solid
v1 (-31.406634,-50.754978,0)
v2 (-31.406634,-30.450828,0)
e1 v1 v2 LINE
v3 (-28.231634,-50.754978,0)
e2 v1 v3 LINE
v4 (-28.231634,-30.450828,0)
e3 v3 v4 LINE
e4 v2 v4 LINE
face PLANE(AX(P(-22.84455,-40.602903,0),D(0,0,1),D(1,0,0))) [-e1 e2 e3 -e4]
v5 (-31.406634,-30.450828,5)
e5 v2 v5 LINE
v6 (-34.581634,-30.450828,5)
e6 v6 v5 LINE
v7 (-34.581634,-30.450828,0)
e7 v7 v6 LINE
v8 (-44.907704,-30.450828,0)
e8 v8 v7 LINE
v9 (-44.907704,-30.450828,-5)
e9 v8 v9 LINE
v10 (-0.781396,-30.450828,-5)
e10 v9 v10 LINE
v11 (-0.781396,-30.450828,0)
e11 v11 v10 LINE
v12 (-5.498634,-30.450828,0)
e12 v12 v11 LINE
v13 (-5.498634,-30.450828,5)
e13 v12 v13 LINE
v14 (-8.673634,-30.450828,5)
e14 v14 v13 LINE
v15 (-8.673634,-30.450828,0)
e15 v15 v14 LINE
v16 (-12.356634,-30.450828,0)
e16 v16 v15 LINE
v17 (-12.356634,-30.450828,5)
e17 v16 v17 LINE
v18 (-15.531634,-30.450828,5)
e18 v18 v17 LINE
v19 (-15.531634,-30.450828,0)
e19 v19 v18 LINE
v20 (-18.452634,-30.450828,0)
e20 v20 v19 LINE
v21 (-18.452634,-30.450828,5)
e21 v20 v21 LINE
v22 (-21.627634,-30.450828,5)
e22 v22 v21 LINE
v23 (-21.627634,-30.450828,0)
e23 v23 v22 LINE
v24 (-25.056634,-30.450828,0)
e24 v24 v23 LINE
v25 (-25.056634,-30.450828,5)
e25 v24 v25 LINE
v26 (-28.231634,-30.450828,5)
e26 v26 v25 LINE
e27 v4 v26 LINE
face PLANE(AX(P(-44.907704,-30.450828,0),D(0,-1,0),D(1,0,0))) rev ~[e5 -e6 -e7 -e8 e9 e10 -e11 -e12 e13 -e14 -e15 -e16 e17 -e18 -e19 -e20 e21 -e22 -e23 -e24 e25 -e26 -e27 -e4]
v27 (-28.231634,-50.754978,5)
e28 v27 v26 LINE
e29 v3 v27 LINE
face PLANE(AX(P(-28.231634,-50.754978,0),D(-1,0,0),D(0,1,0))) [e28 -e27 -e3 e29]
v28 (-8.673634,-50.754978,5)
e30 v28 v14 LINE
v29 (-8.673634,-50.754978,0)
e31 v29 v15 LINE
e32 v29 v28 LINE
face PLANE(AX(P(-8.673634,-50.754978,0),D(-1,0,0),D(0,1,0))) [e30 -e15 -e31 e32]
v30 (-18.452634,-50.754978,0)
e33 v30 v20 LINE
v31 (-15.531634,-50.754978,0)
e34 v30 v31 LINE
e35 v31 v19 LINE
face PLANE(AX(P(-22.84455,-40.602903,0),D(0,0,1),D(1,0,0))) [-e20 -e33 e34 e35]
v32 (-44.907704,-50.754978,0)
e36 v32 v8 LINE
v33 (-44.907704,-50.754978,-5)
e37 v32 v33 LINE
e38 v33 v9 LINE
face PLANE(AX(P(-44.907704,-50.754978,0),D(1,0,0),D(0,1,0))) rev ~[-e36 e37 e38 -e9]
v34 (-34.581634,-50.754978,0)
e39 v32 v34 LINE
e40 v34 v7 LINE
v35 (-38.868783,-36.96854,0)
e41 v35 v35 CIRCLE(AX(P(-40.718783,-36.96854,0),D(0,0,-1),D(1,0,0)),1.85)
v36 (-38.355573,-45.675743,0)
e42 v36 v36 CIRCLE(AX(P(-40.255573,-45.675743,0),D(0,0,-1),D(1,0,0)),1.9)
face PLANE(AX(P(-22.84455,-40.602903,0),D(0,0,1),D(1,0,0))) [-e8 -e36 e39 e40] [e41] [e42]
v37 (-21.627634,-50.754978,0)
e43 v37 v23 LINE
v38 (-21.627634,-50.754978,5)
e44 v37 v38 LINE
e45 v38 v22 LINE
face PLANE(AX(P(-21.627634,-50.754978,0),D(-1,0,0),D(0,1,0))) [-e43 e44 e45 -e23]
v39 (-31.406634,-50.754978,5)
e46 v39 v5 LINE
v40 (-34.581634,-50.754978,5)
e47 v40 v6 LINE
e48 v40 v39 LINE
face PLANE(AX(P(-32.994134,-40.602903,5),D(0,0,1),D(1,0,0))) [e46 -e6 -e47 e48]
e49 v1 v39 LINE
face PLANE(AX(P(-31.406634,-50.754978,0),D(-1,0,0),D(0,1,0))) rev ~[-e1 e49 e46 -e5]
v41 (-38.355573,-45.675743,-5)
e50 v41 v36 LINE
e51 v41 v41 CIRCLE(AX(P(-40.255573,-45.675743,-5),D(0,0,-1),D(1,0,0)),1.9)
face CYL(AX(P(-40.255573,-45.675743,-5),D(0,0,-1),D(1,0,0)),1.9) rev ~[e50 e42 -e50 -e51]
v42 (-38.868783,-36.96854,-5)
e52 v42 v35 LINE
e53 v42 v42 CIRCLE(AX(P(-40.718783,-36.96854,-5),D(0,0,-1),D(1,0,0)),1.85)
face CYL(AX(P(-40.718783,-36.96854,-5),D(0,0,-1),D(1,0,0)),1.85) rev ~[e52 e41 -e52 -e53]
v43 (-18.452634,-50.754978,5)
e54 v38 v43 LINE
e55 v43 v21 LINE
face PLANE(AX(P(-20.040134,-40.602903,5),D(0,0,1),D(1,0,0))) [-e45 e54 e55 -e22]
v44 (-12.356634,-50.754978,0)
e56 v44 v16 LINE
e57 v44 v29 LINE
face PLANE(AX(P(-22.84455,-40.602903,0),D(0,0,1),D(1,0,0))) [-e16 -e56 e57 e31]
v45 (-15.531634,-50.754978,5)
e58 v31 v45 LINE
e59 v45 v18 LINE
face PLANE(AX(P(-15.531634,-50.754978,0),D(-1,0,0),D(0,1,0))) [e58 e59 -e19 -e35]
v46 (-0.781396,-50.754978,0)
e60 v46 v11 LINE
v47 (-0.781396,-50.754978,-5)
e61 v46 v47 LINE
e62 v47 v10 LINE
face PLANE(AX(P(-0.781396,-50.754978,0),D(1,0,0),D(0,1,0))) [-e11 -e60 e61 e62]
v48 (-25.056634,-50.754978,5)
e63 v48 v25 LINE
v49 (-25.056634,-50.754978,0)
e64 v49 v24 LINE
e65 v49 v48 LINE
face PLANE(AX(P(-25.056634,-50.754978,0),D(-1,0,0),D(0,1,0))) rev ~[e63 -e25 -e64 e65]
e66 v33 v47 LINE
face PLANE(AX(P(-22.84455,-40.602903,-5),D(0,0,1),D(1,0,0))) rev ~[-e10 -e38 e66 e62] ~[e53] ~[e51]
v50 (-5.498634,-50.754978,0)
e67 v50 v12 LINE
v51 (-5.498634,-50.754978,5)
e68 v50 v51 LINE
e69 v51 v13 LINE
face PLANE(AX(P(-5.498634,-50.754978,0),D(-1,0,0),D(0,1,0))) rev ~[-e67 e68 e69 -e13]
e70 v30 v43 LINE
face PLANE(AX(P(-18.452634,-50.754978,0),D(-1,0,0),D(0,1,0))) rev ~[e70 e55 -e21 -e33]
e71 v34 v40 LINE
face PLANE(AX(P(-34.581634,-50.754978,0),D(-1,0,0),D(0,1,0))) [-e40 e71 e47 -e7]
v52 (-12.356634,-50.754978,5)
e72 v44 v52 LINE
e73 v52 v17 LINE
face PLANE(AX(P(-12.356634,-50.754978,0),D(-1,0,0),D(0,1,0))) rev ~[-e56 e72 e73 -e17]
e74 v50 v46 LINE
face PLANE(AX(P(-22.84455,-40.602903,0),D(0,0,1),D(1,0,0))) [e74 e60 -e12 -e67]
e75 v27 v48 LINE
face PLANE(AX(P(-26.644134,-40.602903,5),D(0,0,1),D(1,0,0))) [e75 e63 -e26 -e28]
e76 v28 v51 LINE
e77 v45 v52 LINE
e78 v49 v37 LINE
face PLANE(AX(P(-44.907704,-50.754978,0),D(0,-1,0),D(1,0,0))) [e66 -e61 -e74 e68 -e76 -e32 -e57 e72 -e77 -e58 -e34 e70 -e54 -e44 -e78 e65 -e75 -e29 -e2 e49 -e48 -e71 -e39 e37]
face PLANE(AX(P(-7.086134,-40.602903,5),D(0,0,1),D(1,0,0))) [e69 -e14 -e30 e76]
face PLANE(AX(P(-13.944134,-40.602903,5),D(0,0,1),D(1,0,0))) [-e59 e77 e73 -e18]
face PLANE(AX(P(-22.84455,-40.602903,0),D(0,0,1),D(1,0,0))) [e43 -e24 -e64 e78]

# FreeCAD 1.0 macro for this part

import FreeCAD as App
import Part
import Sketcher

V = App.Vector


def add_polygon(sketch, points):
    """Adds a closed chain of lines whose ends are joined by coincident constraints."""
    first, n = sketch.GeometryCount, len(points)
    for a, b in zip(points, points[1:] + points[:1]):
        sketch.addGeometry(Part.LineSegment(App.Vector(*a, 0), App.Vector(*b, 0)), False)
    for i in range(n):
        sketch.addConstraint(Sketcher.Constraint("Coincident", first + i, 2, first + (i + 1) % n, 1))

doc = App.newDocument("Part")
body = doc.addObject("PartDesign::Body", "Body")

# Sketch on XY plane
sketch1 = body.newObject("Sketcher::SketchObject", "Sketch")
sketch1.AttachmentSupport = (doc.getObject("XY_Plane"), [""])
sketch1.MapMode = "FlatFace"
add_polygon(sketch1, [(-45, -30), (-45, -51), (-1, -51), (-1, -30)])  # lines 0-3
sketch1.addConstraint([
    Sketcher.Constraint("Vertical", 0),
    Sketcher.Constraint("Horizontal", 1),
    Sketcher.Constraint("Vertical", 2),
    Sketcher.Constraint("Horizontal", 3),
    Sketcher.Constraint("DistanceX", 1, 1, 1, 2, 44.126308),
    Sketcher.Constraint("DistanceY", 0, 2, 0, 1, 20.30415),
    Sketcher.Constraint("DistanceY", 2, 2, -1, 1, 30.450828),
    Sketcher.Constraint("DistanceX", 0, 2, -1, 1, 44.907704),
])
pad1 = body.newObject("PartDesign::Pad", "Pad")
pad1.Profile = sketch1
pad1.Length = 5
pad1.Reversed = True

# Sketch on XY plane
sketch2 = body.newObject("Sketcher::SketchObject", "Sketch001")
sketch2.AttachmentSupport = (doc.getObject("XY_Plane"), [""])
sketch2.MapMode = "FlatFace"
add_polygon(sketch2, [(-8.7, -30.5), (-8.7, -50.8), (-5.5, -50.8), (-5.5, -30.5)])  # lines 0-3
add_polygon(sketch2, [(-15.5, -30.5), (-15.5, -50.8), (-12.4, -50.8), (-12.4, -30.5)])  # lines 4-7
add_polygon(sketch2, [(-21.6, -30.5), (-21.6, -50.8), (-18.5, -50.8), (-18.5, -30.5)])  # lines 8-11
add_polygon(sketch2, [(-28.2, -30.5), (-28.2, -50.8), (-25.1, -50.8), (-25.1, -30.5)])  # lines 12-15
add_polygon(sketch2, [(-34.6, -30.5), (-34.6, -50.8), (-31.4, -50.8), (-31.4, -30.5)])  # lines 16-19
sketch2.addConstraint([
    Sketcher.Constraint("Vertical", 0),
    Sketcher.Constraint("Horizontal", 1),
    Sketcher.Constraint("Vertical", 2),
    Sketcher.Constraint("Horizontal", 3),
    Sketcher.Constraint("Vertical", 4),
    Sketcher.Constraint("Horizontal", 5),
    Sketcher.Constraint("Vertical", 6),
    Sketcher.Constraint("Horizontal", 7),
    Sketcher.Constraint("Vertical", 8),
    Sketcher.Constraint("Horizontal", 9),
    Sketcher.Constraint("Vertical", 10),
    Sketcher.Constraint("Horizontal", 11),
    Sketcher.Constraint("Vertical", 12),
    Sketcher.Constraint("Horizontal", 13),
    Sketcher.Constraint("Vertical", 14),
    Sketcher.Constraint("Horizontal", 15),
    Sketcher.Constraint("Vertical", 16),
    Sketcher.Constraint("Horizontal", 17),
    Sketcher.Constraint("Vertical", 18),
    Sketcher.Constraint("Horizontal", 19),
    Sketcher.Constraint("Horizontal", 1, 2, 4, 2),
    Sketcher.Constraint("Horizontal", 3, 2, 6, 2),
    Sketcher.Constraint("Horizontal", 5, 2, 8, 2),
    Sketcher.Constraint("Horizontal", 7, 2, 10, 2),
    Sketcher.Constraint("Horizontal", 9, 2, 12, 2),
    Sketcher.Constraint("Horizontal", 11, 2, 14, 2),
    Sketcher.Constraint("Horizontal", 13, 2, 16, 2),
    Sketcher.Constraint("Horizontal", 15, 2, 18, 2),
    Sketcher.Constraint("Equal", 3, 5),
    Sketcher.Constraint("Equal", 7, 9),
    Sketcher.Constraint("Equal", 11, 13),
    Sketcher.Constraint("Equal", 15, 17),
    Sketcher.Constraint("DistanceX", 12, 2, 4, 2, 12.7),
    Sketcher.Constraint("DistanceX", 1, 1, 1, 2, 3.175),
    Sketcher.Constraint("DistanceX", 16, 2, 12, 2, 6.35),
    Sketcher.Constraint("DistanceX", 4, 2, 0, 2, 6.858),
    Sketcher.Constraint("DistanceX", 8, 2, 4, 2, 6.096),
    Sketcher.Constraint("DistanceY", 0, 2, 0, 1, 20.30415),
    Sketcher.Constraint("DistanceY", 2, 2, -1, 1, 30.450828),
    Sketcher.Constraint("DistanceX", 0, 2, -1, 1, 8.673634),
])
pad2 = body.newObject("PartDesign::Pad", "Pad001")
pad2.Profile = sketch2
pad2.Length = 5

# Sketch on XY plane
sketch3 = body.newObject("Sketcher::SketchObject", "Sketch002")
sketch3.AttachmentSupport = (doc.getObject("XY_Plane"), [""])
sketch3.MapMode = "FlatFace"
sketch3.AttachmentOffset = App.Placement(V(0, 0, -5), App.Rotation())
sketch3.addGeometry([
    Part.Circle(V(-40.3, -45.7, 0), V(0, 0, 1), 1.9),
    Part.Circle(V(-40.7, -37, 0), V(0, 0, 1), 1.9),
], False)
sketch3.addConstraint([
    Sketcher.Constraint("Diameter", 0, 3.8),
    Sketcher.Constraint("Diameter", 1, 3.7),
    Sketcher.Constraint("DistanceY", 1, 3, -1, 1, 36.96854),
    Sketcher.Constraint("DistanceX", 1, 3, 0, 3, 0.46321),
    Sketcher.Constraint("DistanceX", 0, 3, -1, 1, 40.255573),
    Sketcher.Constraint("DistanceY", 0, 3, -1, 1, 45.675743),
])
pocket1 = body.newObject("PartDesign::Pocket", "Pocket")
pocket1.Profile = sketch3
pocket1.Type = "ThroughAll"
pocket1.Reversed = True

doc.recompute()
